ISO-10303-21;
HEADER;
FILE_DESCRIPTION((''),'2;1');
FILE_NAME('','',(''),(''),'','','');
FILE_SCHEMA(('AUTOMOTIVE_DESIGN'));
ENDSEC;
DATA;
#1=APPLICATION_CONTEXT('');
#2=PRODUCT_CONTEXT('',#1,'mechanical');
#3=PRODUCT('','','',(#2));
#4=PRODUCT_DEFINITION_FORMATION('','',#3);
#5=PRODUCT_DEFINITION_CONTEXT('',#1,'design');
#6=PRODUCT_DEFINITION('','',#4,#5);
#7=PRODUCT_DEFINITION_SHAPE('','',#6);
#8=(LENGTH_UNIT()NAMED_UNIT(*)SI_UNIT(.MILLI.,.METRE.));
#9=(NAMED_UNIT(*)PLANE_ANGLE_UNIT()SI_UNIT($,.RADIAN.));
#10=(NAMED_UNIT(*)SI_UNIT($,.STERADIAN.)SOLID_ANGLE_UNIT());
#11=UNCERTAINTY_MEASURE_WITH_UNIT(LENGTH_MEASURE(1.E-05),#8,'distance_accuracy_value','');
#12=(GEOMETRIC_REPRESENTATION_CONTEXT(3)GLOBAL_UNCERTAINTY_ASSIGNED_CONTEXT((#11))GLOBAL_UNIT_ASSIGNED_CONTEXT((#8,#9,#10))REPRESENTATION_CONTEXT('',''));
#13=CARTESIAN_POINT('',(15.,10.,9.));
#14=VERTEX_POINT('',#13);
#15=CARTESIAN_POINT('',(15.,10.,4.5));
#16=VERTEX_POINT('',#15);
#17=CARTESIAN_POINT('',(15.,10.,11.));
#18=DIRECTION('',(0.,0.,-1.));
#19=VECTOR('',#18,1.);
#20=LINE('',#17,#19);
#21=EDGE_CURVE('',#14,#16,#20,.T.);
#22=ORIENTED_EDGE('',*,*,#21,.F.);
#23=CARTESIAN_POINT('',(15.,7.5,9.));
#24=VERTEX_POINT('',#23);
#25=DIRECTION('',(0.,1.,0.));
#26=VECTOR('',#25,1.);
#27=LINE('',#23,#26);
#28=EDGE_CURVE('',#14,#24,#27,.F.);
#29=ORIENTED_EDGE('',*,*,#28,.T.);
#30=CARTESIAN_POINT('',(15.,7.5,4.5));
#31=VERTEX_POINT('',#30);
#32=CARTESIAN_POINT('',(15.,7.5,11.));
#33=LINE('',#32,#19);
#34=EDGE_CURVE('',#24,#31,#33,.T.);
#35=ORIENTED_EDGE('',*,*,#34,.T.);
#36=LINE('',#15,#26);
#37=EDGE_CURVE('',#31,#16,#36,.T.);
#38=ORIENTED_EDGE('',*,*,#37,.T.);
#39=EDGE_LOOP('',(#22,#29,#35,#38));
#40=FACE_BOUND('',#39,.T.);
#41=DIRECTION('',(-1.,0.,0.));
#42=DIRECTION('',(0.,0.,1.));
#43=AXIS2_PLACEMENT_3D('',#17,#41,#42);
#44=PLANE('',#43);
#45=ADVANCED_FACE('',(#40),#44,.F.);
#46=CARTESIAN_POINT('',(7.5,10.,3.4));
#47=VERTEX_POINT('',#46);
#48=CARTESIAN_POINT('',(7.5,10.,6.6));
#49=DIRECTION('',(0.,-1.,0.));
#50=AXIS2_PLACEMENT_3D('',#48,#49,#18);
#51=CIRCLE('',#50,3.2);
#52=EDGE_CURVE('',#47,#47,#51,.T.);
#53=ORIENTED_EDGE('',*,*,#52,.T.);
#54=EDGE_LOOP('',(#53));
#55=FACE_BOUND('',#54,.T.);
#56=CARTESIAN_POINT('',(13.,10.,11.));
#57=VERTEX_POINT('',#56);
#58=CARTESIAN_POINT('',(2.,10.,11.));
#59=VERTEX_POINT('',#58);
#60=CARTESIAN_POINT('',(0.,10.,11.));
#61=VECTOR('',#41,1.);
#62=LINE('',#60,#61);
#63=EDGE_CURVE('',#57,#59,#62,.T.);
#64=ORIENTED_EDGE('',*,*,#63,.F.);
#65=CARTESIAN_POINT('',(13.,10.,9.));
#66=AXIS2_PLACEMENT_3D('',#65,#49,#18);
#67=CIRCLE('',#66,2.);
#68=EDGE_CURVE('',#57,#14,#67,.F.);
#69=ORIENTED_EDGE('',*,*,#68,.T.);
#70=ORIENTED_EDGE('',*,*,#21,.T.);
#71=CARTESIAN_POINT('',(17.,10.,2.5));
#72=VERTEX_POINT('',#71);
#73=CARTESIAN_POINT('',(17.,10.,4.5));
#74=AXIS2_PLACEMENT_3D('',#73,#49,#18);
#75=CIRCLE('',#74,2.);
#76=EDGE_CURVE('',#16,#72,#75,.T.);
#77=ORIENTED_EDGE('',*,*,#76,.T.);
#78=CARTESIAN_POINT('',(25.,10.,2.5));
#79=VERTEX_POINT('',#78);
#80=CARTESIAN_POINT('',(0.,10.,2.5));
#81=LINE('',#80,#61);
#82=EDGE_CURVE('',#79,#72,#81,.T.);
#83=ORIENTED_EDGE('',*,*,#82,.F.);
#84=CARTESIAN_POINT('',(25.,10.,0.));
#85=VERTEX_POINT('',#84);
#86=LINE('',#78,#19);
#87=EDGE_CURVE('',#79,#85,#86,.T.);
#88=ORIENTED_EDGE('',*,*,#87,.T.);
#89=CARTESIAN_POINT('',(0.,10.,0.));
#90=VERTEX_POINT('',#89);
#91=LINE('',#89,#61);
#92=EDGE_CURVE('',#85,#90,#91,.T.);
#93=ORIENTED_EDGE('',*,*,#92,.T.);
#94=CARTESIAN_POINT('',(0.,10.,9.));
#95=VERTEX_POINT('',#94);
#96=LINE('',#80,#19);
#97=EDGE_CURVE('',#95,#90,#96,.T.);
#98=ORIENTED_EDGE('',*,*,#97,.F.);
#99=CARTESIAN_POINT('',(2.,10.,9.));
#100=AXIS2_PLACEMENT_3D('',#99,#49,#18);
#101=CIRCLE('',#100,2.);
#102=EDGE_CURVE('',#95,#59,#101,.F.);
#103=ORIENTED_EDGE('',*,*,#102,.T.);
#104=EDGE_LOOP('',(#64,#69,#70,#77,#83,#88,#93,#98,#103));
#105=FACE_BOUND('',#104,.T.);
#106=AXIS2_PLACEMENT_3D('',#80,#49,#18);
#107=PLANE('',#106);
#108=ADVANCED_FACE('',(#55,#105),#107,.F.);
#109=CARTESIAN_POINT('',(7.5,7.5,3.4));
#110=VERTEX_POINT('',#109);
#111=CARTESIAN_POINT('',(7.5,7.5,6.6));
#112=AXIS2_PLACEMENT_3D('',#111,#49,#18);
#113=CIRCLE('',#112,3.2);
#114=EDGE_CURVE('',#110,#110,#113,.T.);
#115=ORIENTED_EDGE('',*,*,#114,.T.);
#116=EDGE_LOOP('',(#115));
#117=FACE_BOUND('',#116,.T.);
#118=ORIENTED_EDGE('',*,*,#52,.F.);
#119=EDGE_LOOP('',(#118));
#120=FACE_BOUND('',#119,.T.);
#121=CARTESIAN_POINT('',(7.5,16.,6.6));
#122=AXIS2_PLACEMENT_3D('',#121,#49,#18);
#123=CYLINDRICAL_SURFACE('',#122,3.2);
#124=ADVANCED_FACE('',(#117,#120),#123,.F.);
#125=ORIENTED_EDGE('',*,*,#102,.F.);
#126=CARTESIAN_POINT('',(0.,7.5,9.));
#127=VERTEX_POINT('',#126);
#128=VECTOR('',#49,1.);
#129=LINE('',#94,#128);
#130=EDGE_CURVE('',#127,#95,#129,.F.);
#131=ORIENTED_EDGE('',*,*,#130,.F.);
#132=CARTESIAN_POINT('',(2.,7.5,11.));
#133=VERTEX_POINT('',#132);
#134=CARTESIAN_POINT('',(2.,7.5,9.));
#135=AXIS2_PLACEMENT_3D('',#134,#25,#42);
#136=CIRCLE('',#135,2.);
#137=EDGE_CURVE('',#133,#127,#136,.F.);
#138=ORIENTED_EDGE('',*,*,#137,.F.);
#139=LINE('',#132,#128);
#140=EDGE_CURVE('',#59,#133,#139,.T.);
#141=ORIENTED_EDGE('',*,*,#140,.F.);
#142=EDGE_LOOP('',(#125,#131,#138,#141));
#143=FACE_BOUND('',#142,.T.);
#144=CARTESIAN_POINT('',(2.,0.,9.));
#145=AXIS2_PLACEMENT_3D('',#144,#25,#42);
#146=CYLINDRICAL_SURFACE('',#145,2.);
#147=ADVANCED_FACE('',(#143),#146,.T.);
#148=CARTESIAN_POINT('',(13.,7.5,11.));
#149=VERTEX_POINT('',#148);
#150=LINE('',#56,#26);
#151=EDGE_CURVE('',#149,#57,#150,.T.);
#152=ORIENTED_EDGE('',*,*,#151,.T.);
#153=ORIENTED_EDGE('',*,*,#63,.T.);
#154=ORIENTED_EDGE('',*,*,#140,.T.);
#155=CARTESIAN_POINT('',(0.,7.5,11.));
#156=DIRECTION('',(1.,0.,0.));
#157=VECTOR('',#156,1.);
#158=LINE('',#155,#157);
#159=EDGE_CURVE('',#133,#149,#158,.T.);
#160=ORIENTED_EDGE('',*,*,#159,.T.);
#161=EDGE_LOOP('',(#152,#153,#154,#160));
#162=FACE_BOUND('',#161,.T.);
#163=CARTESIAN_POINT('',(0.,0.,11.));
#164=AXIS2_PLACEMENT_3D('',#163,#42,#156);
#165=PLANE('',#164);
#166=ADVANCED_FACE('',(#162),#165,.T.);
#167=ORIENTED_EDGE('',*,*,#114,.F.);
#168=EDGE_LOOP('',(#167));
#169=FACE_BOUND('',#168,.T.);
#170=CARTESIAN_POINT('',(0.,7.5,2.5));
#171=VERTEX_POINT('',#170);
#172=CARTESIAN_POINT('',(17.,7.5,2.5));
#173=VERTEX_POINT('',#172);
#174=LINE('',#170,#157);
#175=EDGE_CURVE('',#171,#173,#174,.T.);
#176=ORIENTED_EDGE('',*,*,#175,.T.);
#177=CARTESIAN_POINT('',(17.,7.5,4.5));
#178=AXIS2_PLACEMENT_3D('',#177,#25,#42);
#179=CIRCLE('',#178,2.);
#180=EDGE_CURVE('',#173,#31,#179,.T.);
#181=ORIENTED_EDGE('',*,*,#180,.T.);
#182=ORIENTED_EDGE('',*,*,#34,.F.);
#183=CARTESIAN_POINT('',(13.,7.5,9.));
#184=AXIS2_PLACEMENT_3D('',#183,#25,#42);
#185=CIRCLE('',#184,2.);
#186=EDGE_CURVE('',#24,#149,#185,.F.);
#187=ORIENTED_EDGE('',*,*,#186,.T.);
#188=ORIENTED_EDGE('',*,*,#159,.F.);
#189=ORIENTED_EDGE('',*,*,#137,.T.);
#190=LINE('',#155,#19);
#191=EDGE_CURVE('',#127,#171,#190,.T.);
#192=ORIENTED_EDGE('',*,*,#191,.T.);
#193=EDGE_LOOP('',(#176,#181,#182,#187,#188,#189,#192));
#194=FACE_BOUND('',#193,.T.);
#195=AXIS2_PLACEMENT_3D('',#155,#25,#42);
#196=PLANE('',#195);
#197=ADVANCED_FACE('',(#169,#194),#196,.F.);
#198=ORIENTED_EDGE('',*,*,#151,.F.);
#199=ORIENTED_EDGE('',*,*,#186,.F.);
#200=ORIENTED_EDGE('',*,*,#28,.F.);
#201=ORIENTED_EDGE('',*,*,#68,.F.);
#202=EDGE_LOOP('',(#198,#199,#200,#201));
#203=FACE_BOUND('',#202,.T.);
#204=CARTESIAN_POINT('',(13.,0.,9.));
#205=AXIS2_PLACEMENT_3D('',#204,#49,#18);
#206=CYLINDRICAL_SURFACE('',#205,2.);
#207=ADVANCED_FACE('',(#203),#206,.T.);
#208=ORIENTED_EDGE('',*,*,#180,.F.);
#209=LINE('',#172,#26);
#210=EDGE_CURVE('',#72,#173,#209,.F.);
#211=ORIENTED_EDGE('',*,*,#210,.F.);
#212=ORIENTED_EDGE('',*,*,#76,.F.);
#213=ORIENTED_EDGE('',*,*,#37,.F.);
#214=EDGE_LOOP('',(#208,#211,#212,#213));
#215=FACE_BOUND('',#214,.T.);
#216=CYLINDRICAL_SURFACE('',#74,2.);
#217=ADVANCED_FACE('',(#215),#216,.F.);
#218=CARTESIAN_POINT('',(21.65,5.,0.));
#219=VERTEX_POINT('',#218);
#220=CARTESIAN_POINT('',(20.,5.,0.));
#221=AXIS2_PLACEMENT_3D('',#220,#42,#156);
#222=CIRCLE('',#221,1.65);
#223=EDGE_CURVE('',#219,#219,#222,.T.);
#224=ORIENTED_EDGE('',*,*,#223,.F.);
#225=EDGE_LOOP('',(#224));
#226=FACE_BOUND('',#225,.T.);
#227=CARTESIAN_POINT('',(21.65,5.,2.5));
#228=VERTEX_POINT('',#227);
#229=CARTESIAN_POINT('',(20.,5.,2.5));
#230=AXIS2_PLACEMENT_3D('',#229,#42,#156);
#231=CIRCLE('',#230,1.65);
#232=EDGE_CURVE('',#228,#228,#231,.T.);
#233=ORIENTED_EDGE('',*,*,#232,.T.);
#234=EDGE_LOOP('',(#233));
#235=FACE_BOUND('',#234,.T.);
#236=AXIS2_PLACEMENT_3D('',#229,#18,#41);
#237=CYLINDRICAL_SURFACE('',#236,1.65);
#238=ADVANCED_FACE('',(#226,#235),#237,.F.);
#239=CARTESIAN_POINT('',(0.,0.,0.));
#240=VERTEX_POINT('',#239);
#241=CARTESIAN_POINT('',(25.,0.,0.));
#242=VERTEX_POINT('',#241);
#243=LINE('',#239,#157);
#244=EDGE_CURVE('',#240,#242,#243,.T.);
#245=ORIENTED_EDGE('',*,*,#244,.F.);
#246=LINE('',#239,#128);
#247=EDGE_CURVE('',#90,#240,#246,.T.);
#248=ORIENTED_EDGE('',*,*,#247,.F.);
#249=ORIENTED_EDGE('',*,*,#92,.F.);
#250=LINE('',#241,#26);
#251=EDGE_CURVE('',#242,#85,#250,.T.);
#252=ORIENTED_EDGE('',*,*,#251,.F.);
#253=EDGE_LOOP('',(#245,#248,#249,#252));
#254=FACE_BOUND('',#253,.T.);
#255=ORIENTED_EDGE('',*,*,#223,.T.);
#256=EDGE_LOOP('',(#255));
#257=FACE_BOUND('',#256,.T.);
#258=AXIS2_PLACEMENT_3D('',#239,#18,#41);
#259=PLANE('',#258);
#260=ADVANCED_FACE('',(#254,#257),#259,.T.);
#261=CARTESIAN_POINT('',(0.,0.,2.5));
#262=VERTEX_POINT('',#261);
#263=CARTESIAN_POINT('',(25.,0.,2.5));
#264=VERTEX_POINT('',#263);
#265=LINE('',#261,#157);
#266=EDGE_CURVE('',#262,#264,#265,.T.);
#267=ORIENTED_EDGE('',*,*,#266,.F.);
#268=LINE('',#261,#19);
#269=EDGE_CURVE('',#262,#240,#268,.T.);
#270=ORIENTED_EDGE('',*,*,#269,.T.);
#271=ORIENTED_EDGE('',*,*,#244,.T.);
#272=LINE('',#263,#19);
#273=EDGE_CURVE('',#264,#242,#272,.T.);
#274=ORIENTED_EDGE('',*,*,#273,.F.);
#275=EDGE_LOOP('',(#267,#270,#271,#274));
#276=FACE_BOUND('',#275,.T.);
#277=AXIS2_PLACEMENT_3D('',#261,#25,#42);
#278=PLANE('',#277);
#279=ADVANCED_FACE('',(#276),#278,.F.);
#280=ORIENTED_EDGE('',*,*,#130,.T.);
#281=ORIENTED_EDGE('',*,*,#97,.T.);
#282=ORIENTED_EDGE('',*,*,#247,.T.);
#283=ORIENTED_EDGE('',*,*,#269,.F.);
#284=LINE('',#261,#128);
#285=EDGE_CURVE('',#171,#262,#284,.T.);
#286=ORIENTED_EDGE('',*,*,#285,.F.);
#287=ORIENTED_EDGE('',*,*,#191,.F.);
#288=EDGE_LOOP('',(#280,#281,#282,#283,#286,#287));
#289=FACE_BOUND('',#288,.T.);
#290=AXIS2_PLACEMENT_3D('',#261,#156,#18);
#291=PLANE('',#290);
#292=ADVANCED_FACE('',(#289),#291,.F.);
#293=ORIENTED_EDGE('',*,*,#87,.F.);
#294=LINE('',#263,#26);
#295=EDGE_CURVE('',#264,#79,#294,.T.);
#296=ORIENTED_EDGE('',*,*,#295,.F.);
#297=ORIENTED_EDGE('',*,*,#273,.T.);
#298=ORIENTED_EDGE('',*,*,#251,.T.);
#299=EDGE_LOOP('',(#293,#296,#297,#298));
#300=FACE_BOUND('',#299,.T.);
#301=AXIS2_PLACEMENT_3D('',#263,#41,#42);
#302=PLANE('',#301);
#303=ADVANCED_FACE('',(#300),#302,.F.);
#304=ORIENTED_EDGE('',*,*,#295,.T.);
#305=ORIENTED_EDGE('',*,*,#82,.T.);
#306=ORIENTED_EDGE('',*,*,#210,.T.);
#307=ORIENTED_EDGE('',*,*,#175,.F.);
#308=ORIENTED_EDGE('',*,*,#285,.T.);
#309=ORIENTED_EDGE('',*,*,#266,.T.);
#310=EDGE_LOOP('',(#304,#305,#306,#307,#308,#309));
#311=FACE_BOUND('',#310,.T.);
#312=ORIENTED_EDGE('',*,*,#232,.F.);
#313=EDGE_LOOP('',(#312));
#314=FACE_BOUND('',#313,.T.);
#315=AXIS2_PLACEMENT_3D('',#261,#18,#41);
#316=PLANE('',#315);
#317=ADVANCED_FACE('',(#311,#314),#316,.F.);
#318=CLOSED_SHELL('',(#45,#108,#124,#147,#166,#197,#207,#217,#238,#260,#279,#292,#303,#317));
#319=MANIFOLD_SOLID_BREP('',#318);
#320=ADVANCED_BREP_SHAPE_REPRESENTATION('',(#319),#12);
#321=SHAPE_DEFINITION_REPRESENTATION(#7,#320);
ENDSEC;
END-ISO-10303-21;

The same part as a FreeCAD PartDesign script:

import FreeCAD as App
import Part
import Sketcher

V = App.Vector
Q = App.Units.Quantity


def edges_at(feature, points):
    """Names of the edges that pass closest to the given points."""
    edges = feature.Shape.Edges
    near = lambda p: min(range(len(edges)), key=lambda i: edges[i].distToShape(Part.Vertex(*p))[0])
    return sorted({f"Edge{near(p) + 1}" for p in points})

doc = App.newDocument("Part")
body = doc.addObject("PartDesign::Body", "Body")

sketch1 = doc.addObject("Sketcher::SketchObject", "Sketch")
body.addObject(sketch1)
sketch1.AttachmentSupport = (doc.XY_Plane, [""])
sketch1.MapMode = "FlatFace"
sketch1.addGeometry([
    Part.LineSegment(V(0, 10, 0), V(0, 0, 0)),
    Part.LineSegment(V(0, 0, 0), V(25, 0, 0)),
    Part.LineSegment(V(25, 0, 0), V(25, 10, 0)),
    Part.LineSegment(V(25, 10, 0), V(0, 10, 0)),
    Part.Circle(V(20, 5, 0), V(0, 0, 1), 1.6),
], False)
sketch1.addConstraint([
    Sketcher.Constraint("Coincident", 0, 2, 1, 1),
    Sketcher.Constraint("Coincident", 1, 2, 2, 1),
    Sketcher.Constraint("Coincident", 2, 2, 3, 1),
    Sketcher.Constraint("Coincident", 3, 2, 0, 1),
    Sketcher.Constraint("Vertical", 0),
    Sketcher.Constraint("Horizontal", 1),
    Sketcher.Constraint("Vertical", 2),
    Sketcher.Constraint("Horizontal", 3),
    Sketcher.Constraint("Coincident", 0, 2, -1, 1),
    Sketcher.Constraint("Diameter", 4, Q("3.3 mm")),
    Sketcher.Constraint("DistanceX", 1, 1, 1, 2, Q("25 mm")),
    Sketcher.Constraint("DistanceY", 0, 2, 0, 1, Q("10 mm")),
    Sketcher.Constraint("DistanceX", -1, 1, 4, 3, Q("20 mm")),
    Sketcher.Constraint("DistanceY", -1, 1, 4, 3, Q("5 mm")),
])
pad1 = doc.addObject("PartDesign::Pad", "Pad")
body.addObject(pad1)
pad1.Profile = sketch1
pad1.Length = 2.5

sketch2 = doc.addObject("Sketcher::SketchObject", "Sketch001")
body.addObject(sketch2)
sketch2.AttachmentSupport = (doc.XY_Plane, [""])
sketch2.MapMode = "FlatFace"
sketch2.AttachmentOffset = App.Placement(V(0, 0, 2.5), App.Rotation())
sketch2.addGeometry([
    Part.LineSegment(V(0, 10, 0), V(0, 7.5, 0)),
    Part.LineSegment(V(0, 7.5, 0), V(15, 7.5, 0)),
    Part.LineSegment(V(15, 7.5, 0), V(15, 10, 0)),
    Part.LineSegment(V(15, 10, 0), V(0, 10, 0)),
], False)
sketch2.addConstraint([
    Sketcher.Constraint("Coincident", 0, 2, 1, 1),
    Sketcher.Constraint("Coincident", 1, 2, 2, 1),
    Sketcher.Constraint("Coincident", 2, 2, 3, 1),
    Sketcher.Constraint("Coincident", 3, 2, 0, 1),
    Sketcher.Constraint("Vertical", 0),
    Sketcher.Constraint("Horizontal", 1),
    Sketcher.Constraint("Vertical", 2),
    Sketcher.Constraint("Horizontal", 3),
    Sketcher.Constraint("PointOnObject", 0, 2, -2),
    Sketcher.Constraint("DistanceX", 1, 1, 1, 2, Q("15 mm")),
    Sketcher.Constraint("DistanceY", 0, 2, 0, 1, Q("2.5 mm")),
    Sketcher.Constraint("DistanceY", -1, 1, 2, 2, Q("10 mm")),
])
pad2 = doc.addObject("PartDesign::Pad", "Pad001")
body.addObject(pad2)
pad2.Profile = sketch2
pad2.Length = 8.5
doc.recompute()

fillet = doc.addObject("PartDesign::Fillet", "Fillet")
body.addObject(fillet)
fillet.Base = (pad2, edges_at(pad2, [(15, 8.75, 2.5), (0, 8.75, 11), (15, 8.75, 11)]))
fillet.Radius = 2

sketch3 = doc.addObject("Sketcher::SketchObject", "Sketch002")
body.addObject(sketch3)
sketch3.AttachmentSupport = (doc.XZ_Plane, [""])
sketch3.MapMode = "FlatFace"
sketch3.AttachmentOffset = App.Placement(V(0, 0, -7.5), App.Rotation())
sketch3.addGeometry(Part.Circle(V(7.5, 6.6, 0), V(0, 0, 1), 3.2), False)
sketch3.addConstraint([
    Sketcher.Constraint("Diameter", 0, Q("6.4 mm")),
    Sketcher.Constraint("DistanceX", -1, 1, 0, 3, Q("7.5 mm")),
    Sketcher.Constraint("DistanceY", -1, 1, 0, 3, Q("6.6 mm")),
])
pocket1 = doc.addObject("PartDesign::Pocket", "Pocket")
body.addObject(pocket1)
pocket1.Profile = sketch3
pocket1.Length = 8.5

doc.recompute()
